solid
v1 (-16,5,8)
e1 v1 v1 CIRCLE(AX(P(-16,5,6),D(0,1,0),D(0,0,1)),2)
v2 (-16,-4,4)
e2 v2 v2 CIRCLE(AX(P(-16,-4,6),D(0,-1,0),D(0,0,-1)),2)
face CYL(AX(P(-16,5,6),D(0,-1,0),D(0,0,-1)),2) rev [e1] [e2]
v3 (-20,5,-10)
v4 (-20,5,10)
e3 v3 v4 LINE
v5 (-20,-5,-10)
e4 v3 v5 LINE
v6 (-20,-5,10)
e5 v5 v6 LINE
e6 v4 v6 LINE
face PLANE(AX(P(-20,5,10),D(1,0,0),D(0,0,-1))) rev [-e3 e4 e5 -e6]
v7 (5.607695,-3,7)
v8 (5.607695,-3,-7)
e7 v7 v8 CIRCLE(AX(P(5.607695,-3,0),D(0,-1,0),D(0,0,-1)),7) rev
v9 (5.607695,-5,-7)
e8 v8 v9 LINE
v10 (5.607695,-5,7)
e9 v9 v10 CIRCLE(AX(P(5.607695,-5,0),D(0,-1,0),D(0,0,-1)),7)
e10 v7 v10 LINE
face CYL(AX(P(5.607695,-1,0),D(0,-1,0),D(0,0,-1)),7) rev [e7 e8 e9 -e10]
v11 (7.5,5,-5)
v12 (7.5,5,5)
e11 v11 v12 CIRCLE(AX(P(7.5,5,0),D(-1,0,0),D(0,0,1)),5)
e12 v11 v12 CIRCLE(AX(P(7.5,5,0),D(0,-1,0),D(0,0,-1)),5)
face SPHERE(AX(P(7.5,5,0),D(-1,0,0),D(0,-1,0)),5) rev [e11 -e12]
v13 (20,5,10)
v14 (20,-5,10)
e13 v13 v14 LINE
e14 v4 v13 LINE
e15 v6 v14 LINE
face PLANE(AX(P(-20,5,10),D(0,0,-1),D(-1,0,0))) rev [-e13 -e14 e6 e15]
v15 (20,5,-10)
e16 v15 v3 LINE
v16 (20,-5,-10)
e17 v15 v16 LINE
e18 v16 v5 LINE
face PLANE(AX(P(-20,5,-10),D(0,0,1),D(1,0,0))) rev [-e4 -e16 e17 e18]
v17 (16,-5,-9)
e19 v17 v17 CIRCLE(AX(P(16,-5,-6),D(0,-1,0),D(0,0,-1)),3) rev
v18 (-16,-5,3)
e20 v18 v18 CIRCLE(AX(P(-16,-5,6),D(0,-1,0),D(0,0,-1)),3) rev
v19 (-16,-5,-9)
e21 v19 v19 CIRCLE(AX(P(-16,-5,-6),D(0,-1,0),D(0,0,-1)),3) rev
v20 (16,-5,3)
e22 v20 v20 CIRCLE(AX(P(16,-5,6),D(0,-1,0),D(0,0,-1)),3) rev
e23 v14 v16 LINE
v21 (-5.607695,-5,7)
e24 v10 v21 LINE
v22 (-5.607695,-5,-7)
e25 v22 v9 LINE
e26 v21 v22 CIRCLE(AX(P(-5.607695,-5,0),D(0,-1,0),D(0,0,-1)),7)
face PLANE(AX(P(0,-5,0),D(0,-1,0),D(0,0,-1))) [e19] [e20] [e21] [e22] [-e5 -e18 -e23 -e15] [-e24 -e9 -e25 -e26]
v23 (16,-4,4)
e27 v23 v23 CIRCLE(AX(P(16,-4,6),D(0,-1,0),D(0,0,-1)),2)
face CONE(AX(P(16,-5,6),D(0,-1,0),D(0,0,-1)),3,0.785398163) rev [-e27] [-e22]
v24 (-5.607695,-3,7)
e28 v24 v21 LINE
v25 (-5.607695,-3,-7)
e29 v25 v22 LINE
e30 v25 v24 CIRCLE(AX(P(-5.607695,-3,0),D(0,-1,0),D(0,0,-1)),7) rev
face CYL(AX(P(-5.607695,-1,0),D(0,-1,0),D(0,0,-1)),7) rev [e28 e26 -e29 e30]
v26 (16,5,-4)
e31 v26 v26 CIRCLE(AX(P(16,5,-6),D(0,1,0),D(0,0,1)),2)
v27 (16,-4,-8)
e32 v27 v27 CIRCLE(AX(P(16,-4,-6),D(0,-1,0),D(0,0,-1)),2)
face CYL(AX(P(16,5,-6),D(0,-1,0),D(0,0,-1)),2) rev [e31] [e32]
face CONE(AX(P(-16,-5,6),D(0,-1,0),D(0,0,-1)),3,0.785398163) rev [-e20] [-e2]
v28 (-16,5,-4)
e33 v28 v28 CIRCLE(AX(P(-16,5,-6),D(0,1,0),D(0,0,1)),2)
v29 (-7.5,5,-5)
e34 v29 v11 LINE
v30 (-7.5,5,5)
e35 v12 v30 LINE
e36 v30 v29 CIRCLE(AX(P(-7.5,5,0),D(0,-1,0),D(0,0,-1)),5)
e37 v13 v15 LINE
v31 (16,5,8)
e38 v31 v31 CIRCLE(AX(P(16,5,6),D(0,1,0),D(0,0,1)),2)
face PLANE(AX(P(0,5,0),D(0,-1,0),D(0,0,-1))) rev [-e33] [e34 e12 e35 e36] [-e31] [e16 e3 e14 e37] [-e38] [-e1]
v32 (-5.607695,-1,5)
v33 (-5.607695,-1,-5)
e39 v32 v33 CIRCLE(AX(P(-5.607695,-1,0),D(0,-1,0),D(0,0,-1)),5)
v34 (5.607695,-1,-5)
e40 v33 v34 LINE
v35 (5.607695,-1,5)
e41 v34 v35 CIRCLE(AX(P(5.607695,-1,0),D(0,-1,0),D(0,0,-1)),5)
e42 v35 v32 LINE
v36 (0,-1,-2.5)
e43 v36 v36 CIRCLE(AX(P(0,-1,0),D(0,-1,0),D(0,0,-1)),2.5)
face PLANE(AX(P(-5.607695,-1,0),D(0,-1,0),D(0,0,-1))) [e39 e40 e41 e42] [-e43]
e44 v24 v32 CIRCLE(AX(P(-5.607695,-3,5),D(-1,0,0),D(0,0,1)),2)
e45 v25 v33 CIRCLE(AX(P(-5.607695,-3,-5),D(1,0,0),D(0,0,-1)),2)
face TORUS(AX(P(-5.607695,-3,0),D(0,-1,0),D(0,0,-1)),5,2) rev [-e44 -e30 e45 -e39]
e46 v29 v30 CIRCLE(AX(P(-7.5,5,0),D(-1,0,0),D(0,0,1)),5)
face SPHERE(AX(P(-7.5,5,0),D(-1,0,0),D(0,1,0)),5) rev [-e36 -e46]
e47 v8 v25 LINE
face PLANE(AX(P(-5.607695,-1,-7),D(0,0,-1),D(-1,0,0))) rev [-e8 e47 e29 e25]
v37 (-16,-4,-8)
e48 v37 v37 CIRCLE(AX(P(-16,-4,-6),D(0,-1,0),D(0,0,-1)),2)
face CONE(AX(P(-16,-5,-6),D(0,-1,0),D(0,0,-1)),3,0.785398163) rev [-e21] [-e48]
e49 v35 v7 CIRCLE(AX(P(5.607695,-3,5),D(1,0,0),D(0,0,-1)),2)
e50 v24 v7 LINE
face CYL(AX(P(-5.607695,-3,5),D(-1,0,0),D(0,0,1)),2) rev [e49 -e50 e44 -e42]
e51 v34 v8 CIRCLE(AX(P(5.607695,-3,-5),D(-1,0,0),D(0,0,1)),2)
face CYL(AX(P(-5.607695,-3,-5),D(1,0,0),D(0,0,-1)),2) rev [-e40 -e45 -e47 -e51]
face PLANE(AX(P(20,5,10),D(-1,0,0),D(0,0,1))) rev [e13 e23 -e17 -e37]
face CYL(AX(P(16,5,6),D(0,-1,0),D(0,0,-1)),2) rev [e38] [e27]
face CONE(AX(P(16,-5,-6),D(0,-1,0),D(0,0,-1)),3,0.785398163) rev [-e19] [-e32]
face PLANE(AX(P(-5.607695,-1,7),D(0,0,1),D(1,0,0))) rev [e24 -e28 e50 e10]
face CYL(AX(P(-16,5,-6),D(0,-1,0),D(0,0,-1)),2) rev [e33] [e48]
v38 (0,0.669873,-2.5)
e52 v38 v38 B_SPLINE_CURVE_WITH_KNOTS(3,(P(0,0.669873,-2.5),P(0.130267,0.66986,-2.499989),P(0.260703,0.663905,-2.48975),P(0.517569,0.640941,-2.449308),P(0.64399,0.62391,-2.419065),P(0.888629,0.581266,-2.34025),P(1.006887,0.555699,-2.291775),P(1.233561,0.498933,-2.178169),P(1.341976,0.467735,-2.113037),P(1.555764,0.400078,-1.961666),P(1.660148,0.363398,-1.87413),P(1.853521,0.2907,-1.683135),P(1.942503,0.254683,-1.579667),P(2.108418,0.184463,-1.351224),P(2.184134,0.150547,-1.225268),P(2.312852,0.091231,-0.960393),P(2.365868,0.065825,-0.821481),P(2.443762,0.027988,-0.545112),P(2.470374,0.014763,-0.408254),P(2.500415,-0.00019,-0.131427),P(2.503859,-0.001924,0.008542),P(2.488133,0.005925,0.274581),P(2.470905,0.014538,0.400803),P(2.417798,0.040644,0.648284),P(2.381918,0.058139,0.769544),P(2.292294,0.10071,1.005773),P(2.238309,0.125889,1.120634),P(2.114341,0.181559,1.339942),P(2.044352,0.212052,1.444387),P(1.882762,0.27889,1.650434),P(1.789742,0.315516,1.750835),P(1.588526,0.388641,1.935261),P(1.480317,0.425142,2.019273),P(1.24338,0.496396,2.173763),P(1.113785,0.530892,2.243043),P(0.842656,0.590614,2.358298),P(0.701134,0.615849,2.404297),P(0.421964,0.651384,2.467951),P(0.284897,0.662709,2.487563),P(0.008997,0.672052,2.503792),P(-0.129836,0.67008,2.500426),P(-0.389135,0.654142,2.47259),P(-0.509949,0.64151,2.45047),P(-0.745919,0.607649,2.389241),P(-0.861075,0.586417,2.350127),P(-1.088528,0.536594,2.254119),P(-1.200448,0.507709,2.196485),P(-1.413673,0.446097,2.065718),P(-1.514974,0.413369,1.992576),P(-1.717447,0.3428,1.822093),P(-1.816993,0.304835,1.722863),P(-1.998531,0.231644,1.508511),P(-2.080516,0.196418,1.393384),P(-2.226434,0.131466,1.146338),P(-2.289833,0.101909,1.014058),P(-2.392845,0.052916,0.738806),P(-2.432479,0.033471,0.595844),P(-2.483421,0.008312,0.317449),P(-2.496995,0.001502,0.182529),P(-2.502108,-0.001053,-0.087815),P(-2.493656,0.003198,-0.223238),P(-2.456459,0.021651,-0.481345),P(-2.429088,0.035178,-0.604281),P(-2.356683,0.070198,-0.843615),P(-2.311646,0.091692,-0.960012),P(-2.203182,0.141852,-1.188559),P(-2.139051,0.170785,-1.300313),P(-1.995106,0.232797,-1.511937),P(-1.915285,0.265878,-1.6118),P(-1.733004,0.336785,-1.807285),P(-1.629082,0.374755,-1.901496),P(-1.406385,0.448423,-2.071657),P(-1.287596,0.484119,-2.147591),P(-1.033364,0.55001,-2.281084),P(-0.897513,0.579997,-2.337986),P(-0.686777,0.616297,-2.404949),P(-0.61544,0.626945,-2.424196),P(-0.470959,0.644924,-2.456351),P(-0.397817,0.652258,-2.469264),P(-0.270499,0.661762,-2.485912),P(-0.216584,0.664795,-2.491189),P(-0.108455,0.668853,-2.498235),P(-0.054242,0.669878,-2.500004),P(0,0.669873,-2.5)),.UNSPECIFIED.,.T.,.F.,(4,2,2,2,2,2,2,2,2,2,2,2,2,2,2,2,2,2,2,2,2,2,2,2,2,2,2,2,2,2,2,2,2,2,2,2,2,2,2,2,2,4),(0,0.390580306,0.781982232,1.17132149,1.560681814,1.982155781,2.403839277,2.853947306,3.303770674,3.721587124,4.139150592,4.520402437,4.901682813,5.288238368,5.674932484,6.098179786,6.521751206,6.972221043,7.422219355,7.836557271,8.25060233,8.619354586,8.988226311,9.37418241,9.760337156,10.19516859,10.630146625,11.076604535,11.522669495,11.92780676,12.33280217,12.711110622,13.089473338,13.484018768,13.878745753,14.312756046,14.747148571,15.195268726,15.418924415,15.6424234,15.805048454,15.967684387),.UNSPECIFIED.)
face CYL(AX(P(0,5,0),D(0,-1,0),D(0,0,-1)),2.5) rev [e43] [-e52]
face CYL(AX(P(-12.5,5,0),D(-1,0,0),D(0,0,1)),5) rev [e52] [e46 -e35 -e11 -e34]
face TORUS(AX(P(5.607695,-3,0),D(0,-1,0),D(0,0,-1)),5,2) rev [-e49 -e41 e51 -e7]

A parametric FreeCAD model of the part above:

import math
import FreeCAD as App
import Part
import Sketcher
from FreeCAD import Vector
Q = App.Units.Quantity


def edges_at(feature, points):
    """Names of the edges that pass closest to the given points."""
    edges = feature.Shape.Edges
    near = lambda p: min(range(len(edges)), key=lambda i: edges[i].distToShape(Part.Vertex(*p))[0])
    return sorted({f"Edge{near(p) + 1}" for p in points})

doc = App.newDocument("Part")
body = doc.addObject("PartDesign::Body", "Body")

sketch1 = body.newObject("Sketcher::SketchObject", "Sketch")
sketch1.AttachmentSupport = (doc.getObject("XZ_Plane"), [""])
sketch1.MapMode = "FlatFace"
sketch1.addGeometry([
    Part.LineSegment(Vector(-20, -10, 0), Vector(-20, 10, 0)),
    Part.LineSegment(Vector(-20, 10, 0), Vector(20, 10, 0)),
    Part.LineSegment(Vector(20, 10, 0), Vector(20, -10, 0)),
    Part.LineSegment(Vector(20, -10, 0), Vector(-20, -10, 0)),
    Part.Circle(Vector(-16, 6, 0), Vector(0, 0, 1), 2),
    Part.Circle(Vector(16, 6, 0), Vector(0, 0, 1), 2),
    Part.Circle(Vector(-16, -6, 0), Vector(0, 0, 1), 2),
    Part.Circle(Vector(0, 0, 0), Vector(0, 0, 1), 2.5),
    Part.Circle(Vector(16, -6, 0), Vector(0, 0, 1), 2),
], False)
sketch1.addConstraint([
    Sketcher.Constraint("Coincident", 0, 2, 1, 1),
    Sketcher.Constraint("Coincident", 1, 2, 2, 1),
    Sketcher.Constraint("Coincident", 2, 2, 3, 1),
    Sketcher.Constraint("Coincident", 3, 2, 0, 1),
    Sketcher.Constraint("Vertical", 0),
    Sketcher.Constraint("Horizontal", 1),
    Sketcher.Constraint("Vertical", 2),
    Sketcher.Constraint("Horizontal", 3),
    Sketcher.Constraint("Coincident", 7, 3, -1, 1),
    Sketcher.Constraint("Equal", 4, 5),
    Sketcher.Constraint("Equal", 5, 6),
    Sketcher.Constraint("Equal", 6, 8),
    Sketcher.Constraint("Symmetric", 5, 3, 6, 3, -1, 1),
    Sketcher.Constraint("Symmetric", 4, 3, 8, 3, -1, 1),
    Sketcher.Constraint("Symmetric", 0, 2, 2, 2, -1, 1),
    Sketcher.Constraint("Symmetric", 4, 3, 5, 3, -2),
    Sketcher.Constraint("Diameter", 4, Q("4 mm")),
    Sketcher.Constraint("Diameter", 7, Q("5 mm")),
    Sketcher.Constraint("DistanceX", 1, 1, 1, 2, Q("40 mm")),
    Sketcher.Constraint("DistanceY", 0, 1, 0, 2, Q("20 mm")),
    Sketcher.Constraint("DistanceX", 4, 3, -1, 1, Q("16 mm")),
    Sketcher.Constraint("DistanceY", -1, 1, 4, 3, Q("6 mm")),
])
pad1 = body.newObject("PartDesign::Pad", "Pad")
pad1.Profile = sketch1
pad1.Length = 10
pad1.Midplane = True

sketch2 = body.newObject("Sketcher::SketchObject", "Sketch001")
sketch2.AttachmentSupport = (doc.getObject("XY_Plane"), [""])
sketch2.MapMode = "FlatFace"
sketch2.addGeometry([
    Part.LineSegment(Vector(12, 5, 0), Vector(-12, 5, 0)),
    Part.ArcOfCircle(Part.Circle(Vector(-8, 5, 0), Vector(0, 0, 1), 5), math.radians(180), math.radians(270)),
    Part.LineSegment(Vector(-8, 0, 0), Vector(8, 0, 0)),
    Part.ArcOfCircle(Part.Circle(Vector(8, 5, 0), Vector(0, 0, 1), 5), math.radians(-90), math.radians(0)),
], False)
sketch2.addGeometry(Part.LineSegment(Vector(-12, 5, 0), Vector(12, 5, 0)), True)
sketch2.addConstraint([
    Sketcher.Constraint("Coincident", 0, 2, 1, 1),
    Sketcher.Constraint("Tangent", 1, 2, 2, 1),
    Sketcher.Constraint("Tangent", 2, 2, 3, 1),
    Sketcher.Constraint("Coincident", 3, 2, 0, 1),
    Sketcher.Constraint("Horizontal", 0),
    Sketcher.Constraint("Horizontal", 2),
    Sketcher.Constraint("Horizontal", 4),
    Sketcher.Constraint("Coincident", 4, 1, 0, 2),
    Sketcher.Constraint("Equal", 1, 3),
    Sketcher.Constraint("Symmetric", 1, 2, 2, 2, -1, 1),
    Sketcher.Constraint("Horizontal", 3, 3, 0, 2),
    Sketcher.Constraint("Equal", 0, 4),
    Sketcher.Constraint("Radius", 1, Q("5 mm")),
    Sketcher.Constraint("DistanceX", 0, 2, 0, 1, Q("25 mm")),
])
groove = body.newObject("PartDesign::Groove", "Groove")
groove.Profile = sketch2
groove.ReferenceAxis = (sketch2, ["Axis0"])
groove.Angle = 360
doc.recompute()

chamfer = body.newObject("PartDesign::Chamfer", "Chamfer")
chamfer.Base = (groove, edges_at(groove, [
    (-16, -5, -8),
    (16, -5, -8),
    (16, -5, 4),
    (-16, -5, 4),
]))
chamfer.Size = 1

sketch3 = body.newObject("Sketcher::SketchObject", "Sketch002")
sketch3.AttachmentSupport = (doc.getObject("XZ_Plane"), [""])
sketch3.MapMode = "FlatFace"
sketch3.AttachmentOffset = App.Placement(Vector(0, 0, 5), App.Rotation())
sketch3.addGeometry([
    Part.LineSegment(Vector(6, 7, 0), Vector(-6, 7, 0)),
    Part.ArcOfCircle(Part.Circle(Vector(-6, 0, 0), Vector(0, 0, 1), 7), math.radians(90), math.radians(270)),
    Part.LineSegment(Vector(-6, -7, 0), Vector(6, -7, 0)),
    Part.ArcOfCircle(Part.Circle(Vector(6, 0, 0), Vector(0, 0, 1), 7), math.radians(-90), math.radians(90)),
], False)
sketch3.addConstraint([
    Sketcher.Constraint("Tangent", 0, 2, 1, 1),
    Sketcher.Constraint("Tangent", 1, 2, 2, 1),
    Sketcher.Constraint("Tangent", 2, 2, 3, 1),
    Sketcher.Constraint("Tangent", 3, 2, 0, 1),
    Sketcher.Constraint("Horizontal", 0),
    Sketcher.Constraint("Horizontal", 2),
    Sketcher.Constraint("Symmetric", 1, 3, 3, 3, -1, 1),
    Sketcher.Constraint("Radius", 1, Q("7 mm")),
    Sketcher.Constraint("DistanceX", 0, 2, 0, 1, Q("11.21539 mm")),
])
pocket1 = body.newObject("PartDesign::Pocket", "Pocket")
pocket1.Profile = sketch3
pocket1.Length = 4
doc.recompute()

fillet = body.newObject("PartDesign::Fillet", "Fillet")
fillet.Base = (pocket1, edges_at(pocket1, [
    (-12.608, -1, 0),
    (0, -1, 7),
    (12.608, -1, 0),
    (0, -1, -7),
]))
fillet.Radius = 2

doc.recompute()
